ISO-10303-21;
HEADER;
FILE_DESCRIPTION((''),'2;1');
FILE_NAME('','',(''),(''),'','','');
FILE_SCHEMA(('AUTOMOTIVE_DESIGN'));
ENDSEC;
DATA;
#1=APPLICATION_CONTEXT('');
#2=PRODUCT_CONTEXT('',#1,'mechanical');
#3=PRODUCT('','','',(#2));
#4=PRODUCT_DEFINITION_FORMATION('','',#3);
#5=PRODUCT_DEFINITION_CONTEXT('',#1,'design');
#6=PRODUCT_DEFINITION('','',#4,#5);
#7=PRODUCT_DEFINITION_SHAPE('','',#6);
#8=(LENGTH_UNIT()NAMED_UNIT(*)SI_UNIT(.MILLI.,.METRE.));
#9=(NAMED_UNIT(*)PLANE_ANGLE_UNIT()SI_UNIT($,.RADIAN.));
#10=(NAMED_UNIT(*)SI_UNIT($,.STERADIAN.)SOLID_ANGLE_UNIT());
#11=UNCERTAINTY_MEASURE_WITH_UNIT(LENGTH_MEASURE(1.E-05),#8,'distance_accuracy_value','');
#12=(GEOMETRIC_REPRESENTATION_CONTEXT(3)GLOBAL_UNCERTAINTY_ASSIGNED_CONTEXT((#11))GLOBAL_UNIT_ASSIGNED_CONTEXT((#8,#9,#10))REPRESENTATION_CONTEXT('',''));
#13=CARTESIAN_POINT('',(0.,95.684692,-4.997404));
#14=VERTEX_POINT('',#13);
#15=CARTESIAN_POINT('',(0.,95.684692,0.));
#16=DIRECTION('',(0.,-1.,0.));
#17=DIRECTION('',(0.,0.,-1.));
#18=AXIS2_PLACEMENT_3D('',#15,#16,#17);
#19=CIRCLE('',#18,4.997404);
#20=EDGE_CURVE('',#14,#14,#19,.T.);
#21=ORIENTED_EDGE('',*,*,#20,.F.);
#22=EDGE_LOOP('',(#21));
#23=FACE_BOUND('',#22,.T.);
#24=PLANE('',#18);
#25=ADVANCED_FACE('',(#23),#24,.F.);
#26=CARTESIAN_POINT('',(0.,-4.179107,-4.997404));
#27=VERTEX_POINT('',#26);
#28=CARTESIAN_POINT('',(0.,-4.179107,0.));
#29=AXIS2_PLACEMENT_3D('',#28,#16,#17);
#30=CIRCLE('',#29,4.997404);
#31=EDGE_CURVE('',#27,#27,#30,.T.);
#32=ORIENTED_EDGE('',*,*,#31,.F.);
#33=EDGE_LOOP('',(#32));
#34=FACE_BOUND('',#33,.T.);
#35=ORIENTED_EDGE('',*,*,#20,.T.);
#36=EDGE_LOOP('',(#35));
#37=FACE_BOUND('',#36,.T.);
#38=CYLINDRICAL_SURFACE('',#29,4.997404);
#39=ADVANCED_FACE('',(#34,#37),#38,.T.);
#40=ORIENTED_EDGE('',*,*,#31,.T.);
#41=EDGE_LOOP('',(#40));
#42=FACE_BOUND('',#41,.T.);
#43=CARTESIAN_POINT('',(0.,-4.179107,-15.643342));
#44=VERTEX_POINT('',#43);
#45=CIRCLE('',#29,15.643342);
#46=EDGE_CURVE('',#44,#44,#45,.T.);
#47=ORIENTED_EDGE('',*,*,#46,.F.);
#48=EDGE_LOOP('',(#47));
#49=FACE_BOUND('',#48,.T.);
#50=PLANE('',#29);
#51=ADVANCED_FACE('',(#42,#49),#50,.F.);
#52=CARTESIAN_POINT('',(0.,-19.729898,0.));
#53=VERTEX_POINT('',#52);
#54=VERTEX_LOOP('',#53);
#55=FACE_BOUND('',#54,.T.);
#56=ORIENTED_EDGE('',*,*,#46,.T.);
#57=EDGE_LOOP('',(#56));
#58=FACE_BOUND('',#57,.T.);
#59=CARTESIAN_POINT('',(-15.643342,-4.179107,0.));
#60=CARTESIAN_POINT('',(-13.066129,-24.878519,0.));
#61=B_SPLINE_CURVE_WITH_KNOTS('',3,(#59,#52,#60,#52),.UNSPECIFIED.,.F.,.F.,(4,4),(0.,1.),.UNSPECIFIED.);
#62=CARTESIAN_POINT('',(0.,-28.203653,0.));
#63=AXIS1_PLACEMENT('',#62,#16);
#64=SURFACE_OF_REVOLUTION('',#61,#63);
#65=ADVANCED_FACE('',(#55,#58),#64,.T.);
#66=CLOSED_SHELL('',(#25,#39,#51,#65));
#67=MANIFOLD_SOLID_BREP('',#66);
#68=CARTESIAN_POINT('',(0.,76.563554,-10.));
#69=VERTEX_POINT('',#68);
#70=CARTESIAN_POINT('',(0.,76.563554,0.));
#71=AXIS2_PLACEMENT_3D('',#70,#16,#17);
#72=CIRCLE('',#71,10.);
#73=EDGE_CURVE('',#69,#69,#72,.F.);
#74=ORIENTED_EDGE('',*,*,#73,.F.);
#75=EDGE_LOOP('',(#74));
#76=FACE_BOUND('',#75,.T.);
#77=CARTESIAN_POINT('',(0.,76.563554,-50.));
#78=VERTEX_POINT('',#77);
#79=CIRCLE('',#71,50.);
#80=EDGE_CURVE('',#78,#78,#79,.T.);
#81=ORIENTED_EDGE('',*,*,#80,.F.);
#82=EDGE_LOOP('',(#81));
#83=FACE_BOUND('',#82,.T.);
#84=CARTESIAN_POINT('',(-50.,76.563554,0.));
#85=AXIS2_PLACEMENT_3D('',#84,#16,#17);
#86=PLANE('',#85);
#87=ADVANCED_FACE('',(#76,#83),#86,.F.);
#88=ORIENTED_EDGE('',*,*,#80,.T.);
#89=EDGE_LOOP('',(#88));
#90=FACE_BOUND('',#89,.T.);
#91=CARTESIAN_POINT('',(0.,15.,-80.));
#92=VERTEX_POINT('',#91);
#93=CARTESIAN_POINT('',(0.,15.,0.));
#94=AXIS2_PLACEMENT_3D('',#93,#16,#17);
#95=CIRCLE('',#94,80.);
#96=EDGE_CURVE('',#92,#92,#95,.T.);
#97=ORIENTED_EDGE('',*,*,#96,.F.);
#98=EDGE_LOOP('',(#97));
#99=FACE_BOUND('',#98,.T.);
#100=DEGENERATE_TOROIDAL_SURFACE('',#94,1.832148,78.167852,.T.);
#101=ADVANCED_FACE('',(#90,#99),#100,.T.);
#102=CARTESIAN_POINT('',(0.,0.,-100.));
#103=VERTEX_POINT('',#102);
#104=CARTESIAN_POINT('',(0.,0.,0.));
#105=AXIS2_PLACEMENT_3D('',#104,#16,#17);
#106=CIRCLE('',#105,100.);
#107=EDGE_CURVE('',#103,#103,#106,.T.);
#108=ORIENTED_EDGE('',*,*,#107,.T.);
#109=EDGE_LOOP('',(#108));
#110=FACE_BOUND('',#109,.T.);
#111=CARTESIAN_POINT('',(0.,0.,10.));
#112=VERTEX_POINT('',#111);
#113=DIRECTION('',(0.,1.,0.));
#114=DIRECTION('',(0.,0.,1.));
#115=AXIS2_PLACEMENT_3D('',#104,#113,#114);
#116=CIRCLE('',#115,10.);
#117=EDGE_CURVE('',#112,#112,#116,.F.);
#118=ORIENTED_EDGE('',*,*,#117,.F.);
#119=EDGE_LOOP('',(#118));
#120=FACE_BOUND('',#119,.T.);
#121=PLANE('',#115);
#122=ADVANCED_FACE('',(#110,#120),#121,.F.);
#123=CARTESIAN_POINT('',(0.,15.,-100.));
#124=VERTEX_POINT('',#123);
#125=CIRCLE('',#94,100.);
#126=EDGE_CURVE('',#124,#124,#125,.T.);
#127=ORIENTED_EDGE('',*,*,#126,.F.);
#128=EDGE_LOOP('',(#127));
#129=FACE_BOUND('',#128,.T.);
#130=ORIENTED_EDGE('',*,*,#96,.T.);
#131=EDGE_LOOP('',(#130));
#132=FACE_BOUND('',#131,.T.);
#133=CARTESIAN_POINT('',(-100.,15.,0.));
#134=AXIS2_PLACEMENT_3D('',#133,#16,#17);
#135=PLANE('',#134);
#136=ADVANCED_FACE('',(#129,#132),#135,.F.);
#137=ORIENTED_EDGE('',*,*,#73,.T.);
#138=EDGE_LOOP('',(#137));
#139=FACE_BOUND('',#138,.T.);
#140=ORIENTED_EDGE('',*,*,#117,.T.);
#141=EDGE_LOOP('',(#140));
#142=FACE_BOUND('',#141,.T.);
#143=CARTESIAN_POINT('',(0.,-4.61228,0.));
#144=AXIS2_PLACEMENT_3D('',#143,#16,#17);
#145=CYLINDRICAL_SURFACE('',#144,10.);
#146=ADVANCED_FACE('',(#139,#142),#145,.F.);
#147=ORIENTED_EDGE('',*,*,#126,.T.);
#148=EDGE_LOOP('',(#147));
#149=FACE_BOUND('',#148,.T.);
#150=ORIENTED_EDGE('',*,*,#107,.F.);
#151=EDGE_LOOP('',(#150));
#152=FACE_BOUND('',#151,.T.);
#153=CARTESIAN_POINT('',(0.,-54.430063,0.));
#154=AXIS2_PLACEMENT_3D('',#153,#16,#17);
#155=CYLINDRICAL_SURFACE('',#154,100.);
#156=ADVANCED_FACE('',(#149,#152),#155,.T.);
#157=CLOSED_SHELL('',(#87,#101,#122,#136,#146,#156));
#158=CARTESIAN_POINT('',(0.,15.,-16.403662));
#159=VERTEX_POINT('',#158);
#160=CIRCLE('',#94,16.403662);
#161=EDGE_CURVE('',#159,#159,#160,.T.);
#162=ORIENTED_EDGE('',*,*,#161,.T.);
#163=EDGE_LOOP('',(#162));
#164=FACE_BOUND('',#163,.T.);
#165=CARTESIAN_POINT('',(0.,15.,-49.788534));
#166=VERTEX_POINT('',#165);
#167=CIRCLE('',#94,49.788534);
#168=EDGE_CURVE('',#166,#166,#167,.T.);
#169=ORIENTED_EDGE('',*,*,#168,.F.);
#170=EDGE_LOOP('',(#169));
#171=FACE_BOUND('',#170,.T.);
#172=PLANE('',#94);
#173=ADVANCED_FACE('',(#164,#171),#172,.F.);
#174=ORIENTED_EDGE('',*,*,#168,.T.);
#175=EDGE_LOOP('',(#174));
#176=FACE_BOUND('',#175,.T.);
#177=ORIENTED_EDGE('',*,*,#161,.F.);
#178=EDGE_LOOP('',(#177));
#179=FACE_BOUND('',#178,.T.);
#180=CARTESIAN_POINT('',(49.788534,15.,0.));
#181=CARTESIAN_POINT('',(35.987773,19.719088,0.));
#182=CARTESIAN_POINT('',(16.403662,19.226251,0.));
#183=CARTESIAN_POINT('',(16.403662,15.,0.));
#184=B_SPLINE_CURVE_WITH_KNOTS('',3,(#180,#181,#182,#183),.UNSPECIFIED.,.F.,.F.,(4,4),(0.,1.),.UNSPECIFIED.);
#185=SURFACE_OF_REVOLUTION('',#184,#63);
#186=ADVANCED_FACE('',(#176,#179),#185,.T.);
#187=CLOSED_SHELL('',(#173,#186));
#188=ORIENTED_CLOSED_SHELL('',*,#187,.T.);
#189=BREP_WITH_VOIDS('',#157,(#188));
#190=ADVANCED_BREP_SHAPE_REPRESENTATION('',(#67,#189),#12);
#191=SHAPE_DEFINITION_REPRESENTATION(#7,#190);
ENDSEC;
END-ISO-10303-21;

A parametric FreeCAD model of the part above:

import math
import FreeCAD as App
import Part
import Sketcher
Q = App.Units.Quantity


def add_polygon(sketch, points):
    """Adds a closed chain of lines whose ends are joined by coincident constraints."""
    first, n = sketch.GeometryCount, len(points)
    for a, b in zip(points, points[1:] + points[:1]):
        sketch.addGeometry(Part.LineSegment(App.Vector(*a, 0), App.Vector(*b, 0)), False)
    for i in range(n):
        sketch.addConstraint(Sketcher.Constraint("Coincident", first + i, 2, first + (i + 1) % n, 1))

doc = App.newDocument("Part")
body = doc.addObject("PartDesign::Body", "Body")

# Sketch on XY plane
sketch1 = doc.addObject("Sketcher::SketchObject", "Sketch")
body.addObject(sketch1)
sketch1.AttachmentSupport = (doc.XY_Plane, [""])
sketch1.MapMode = "FlatFace"
sketch1.addGeometry(Part.LineSegment(App.Vector(-100, 0, 0), App.Vector(0, 0, 0)), False)
sketch1.addGeometry(Part.LineSegment(App.Vector(0, 0, 0), App.Vector(0, 77, 0)), False)
sketch1.addGeometry(Part.LineSegment(App.Vector(0, 77, 0), App.Vector(-50, 77, 0)), False)
sketch1.addGeometry(Part.ArcOfCircle(Part.Circle(App.Vector(-2, 15, 0), App.Vector(0, 0, 1), 78), math.radians(128), math.radians(180)), False)
sketch1.addGeometry(Part.LineSegment(App.Vector(-80, 15, 0), App.Vector(-100, 15, 0)), False)
sketch1.addGeometry(Part.LineSegment(App.Vector(-100, 15, 0), App.Vector(-100, 0, 0)), False)
sketch1.addConstraint(Sketcher.Constraint("Coincident", 0, 2, 1, 1))
sketch1.addConstraint(Sketcher.Constraint("Coincident", 1, 2, 2, 1))
sketch1.addConstraint(Sketcher.Constraint("Coincident", 2, 2, 3, 1))
sketch1.addConstraint(Sketcher.Constraint("Coincident", 3, 2, 4, 1))
sketch1.addConstraint(Sketcher.Constraint("Coincident", 4, 2, 5, 1))
sketch1.addConstraint(Sketcher.Constraint("Coincident", 5, 2, 0, 1))
sketch1.addConstraint(Sketcher.Constraint("Horizontal", 0))
sketch1.addConstraint(Sketcher.Constraint("Vertical", 1))
sketch1.addConstraint(Sketcher.Constraint("Horizontal", 2))
sketch1.addConstraint(Sketcher.Constraint("Horizontal", 4))
sketch1.addConstraint(Sketcher.Constraint("Vertical", 5))
sketch1.addConstraint(Sketcher.Constraint("Coincident", 0, 2, -1, 1))
sketch1.addConstraint(Sketcher.Constraint("DistanceX", 0, 1, 0, 2, Q("100 mm")))
sketch1.addConstraint(Sketcher.Constraint("DistanceX", 2, 2, 2, 1, Q("50 mm")))
sketch1.addConstraint(Sketcher.Constraint("DistanceX", 4, 2, 4, 1, Q("20 mm")))
sketch1.addConstraint(Sketcher.Constraint("DistanceY", 5, 2, 5, 1, Q("15 mm")))
sketch1.addConstraint(Sketcher.Constraint("DistanceY", -1, 1, 3, 3, Q("15 mm")))
sketch1.addConstraint(Sketcher.Constraint("Radius", 3, Q("78.167852 mm")))
revolution = doc.addObject("PartDesign::Revolution", "Revolution")
body.addObject(revolution)
revolution.Profile = sketch1
revolution.ReferenceAxis = (sketch1, ["V_Axis"])
revolution.Angle = 360

# Sketch on XY plane
sketch2 = doc.addObject("Sketcher::SketchObject", "Sketch001")
body.addObject(sketch2)
sketch2.AttachmentSupport = (doc.XY_Plane, [""])
sketch2.MapMode = "FlatFace"
add_polygon(sketch2, [(-10, 81), (-10, -5), (0, -5), (0, 81)])  # lines 0-3
sketch2.addConstraint(Sketcher.Constraint("Vertical", 0))
sketch2.addConstraint(Sketcher.Constraint("Horizontal", 1))
sketch2.addConstraint(Sketcher.Constraint("Vertical", 2))
sketch2.addConstraint(Sketcher.Constraint("Horizontal", 3))
sketch2.addConstraint(Sketcher.Constraint("PointOnObject", 1, 2, -2))
sketch2.addConstraint(Sketcher.Constraint("DistanceX", 1, 1, 1, 2, Q("10 mm")))
sketch2.addConstraint(Sketcher.Constraint("DistanceY", 0, 2, 0, 1, Q("85.271318 mm")))
sketch2.addConstraint(Sketcher.Constraint("DistanceY", 0, 2, -1, 1, Q("4.61228 mm")))
groove = doc.addObject("PartDesign::Groove", "Groove")
body.addObject(groove)
groove.Profile = sketch2
groove.ReferenceAxis = (sketch2, ["V_Axis"])
groove.Angle = 360

# Sketch on XY plane
sketch3 = doc.addObject("Sketcher::SketchObject", "Sketch002")
body.addObject(sketch3)
sketch3.AttachmentSupport = (doc.XY_Plane, [""])
sketch3.MapMode = "FlatFace"
sketch3.addGeometry(Part.LineSegment(App.Vector(16.403662, 15, 0), App.Vector(49.788534, 15, 0)), False)
sketch3.addGeometry(Part.BSplineCurve([App.Vector(49.788534, 15, 0), App.Vector(35.987773, 19.719088, 0), App.Vector(16.403662, 19.226251, 0), App.Vector(16.403662, 15, 0)], [4, 4], [0, 1], False, 3, [1, 1, 1, 1], False), False)
sketch3.addConstraint(Sketcher.Constraint("Block", 1))
sketch3.addConstraint(Sketcher.Constraint("Coincident", 0, 1, 1, 2))
sketch3.addConstraint(Sketcher.Constraint("Coincident", 1, 1, 0, 2))
groove2 = doc.addObject("PartDesign::Groove", "Groove001")
body.addObject(groove2)
groove2.Profile = sketch3
groove2.ReferenceAxis = (sketch3, ["V_Axis"])
groove2.Angle = 360
body2 = doc.addObject("PartDesign::Body", "Body001")

# Sketch on XY plane
sketch4 = doc.addObject("Sketcher::SketchObject", "Sketch003")
body2.addObject(sketch4)
sketch4.AttachmentSupport = (doc.getObject("XY_Plane001"), [""])
sketch4.MapMode = "FlatFace"
add_polygon(sketch4, [(-5, 95.7), (-5, -4.2), (0, -4.2), (0, 95.7)])  # lines 0-3
sketch4.addConstraint(Sketcher.Constraint("Vertical", 0))
sketch4.addConstraint(Sketcher.Constraint("Horizontal", 1))
sketch4.addConstraint(Sketcher.Constraint("Vertical", 2))
sketch4.addConstraint(Sketcher.Constraint("Horizontal", 3))
sketch4.addConstraint(Sketcher.Constraint("PointOnObject", 1, 2, -2))
sketch4.addConstraint(Sketcher.Constraint("DistanceY", 0, 2, 0, 1, Q("99.863798 mm")))
sketch4.addConstraint(Sketcher.Constraint("DistanceX", 1, 1, 1, 2, Q("4.997404 mm")))
sketch4.addConstraint(Sketcher.Constraint("DistanceY", -1, 1, 2, 2, Q("95.684692 mm")))
revolution2 = doc.addObject("PartDesign::Revolution", "Revolution001")
body2.addObject(revolution2)
revolution2.Profile = sketch4
revolution2.ReferenceAxis = (sketch4, ["V_Axis"])
revolution2.Angle = 360

# Sketch on XY plane
sketch5 = doc.addObject("Sketcher::SketchObject", "Sketch004")
body2.addObject(sketch5)
sketch5.AttachmentSupport = (doc.getObject("XY_Plane001"), [""])
sketch5.MapMode = "FlatFace"
sketch5.addGeometry(Part.LineSegment(App.Vector(0, -4.179107, 0), App.Vector(-15.643342, -4.179107, 0)), False)
sketch5.addGeometry(Part.BSplineCurve([App.Vector(-15.643342, -4.179107, 0), App.Vector(0, -19.729898, 0), App.Vector(-13.066129, -24.878519, 0), App.Vector(0, -19.729898, 0)], [4, 4], [0, 1], False, 3, [1, 1, 1, 1], False), False)
sketch5.addGeometry(Part.LineSegment(App.Vector(0, -19.729898, 0), App.Vector(0, -4.179107, 0)), False)
sketch5.addConstraint(Sketcher.Constraint("Block", 1))
sketch5.addConstraint(Sketcher.Constraint("Coincident", 0, 2, 1, 1))
sketch5.addConstraint(Sketcher.Constraint("Coincident", 1, 2, 2, 1))
sketch5.addConstraint(Sketcher.Constraint("Coincident", 2, 2, 0, 1))
sketch5.addConstraint(Sketcher.Constraint("Horizontal", 0))
sketch5.addConstraint(Sketcher.Constraint("Vertical", 2))
revolution3 = doc.addObject("PartDesign::Revolution", "Revolution002")
body2.addObject(revolution3)
revolution3.Profile = sketch5
revolution3.ReferenceAxis = (sketch5, ["V_Axis"])
revolution3.Angle = 360

doc.recompute()
